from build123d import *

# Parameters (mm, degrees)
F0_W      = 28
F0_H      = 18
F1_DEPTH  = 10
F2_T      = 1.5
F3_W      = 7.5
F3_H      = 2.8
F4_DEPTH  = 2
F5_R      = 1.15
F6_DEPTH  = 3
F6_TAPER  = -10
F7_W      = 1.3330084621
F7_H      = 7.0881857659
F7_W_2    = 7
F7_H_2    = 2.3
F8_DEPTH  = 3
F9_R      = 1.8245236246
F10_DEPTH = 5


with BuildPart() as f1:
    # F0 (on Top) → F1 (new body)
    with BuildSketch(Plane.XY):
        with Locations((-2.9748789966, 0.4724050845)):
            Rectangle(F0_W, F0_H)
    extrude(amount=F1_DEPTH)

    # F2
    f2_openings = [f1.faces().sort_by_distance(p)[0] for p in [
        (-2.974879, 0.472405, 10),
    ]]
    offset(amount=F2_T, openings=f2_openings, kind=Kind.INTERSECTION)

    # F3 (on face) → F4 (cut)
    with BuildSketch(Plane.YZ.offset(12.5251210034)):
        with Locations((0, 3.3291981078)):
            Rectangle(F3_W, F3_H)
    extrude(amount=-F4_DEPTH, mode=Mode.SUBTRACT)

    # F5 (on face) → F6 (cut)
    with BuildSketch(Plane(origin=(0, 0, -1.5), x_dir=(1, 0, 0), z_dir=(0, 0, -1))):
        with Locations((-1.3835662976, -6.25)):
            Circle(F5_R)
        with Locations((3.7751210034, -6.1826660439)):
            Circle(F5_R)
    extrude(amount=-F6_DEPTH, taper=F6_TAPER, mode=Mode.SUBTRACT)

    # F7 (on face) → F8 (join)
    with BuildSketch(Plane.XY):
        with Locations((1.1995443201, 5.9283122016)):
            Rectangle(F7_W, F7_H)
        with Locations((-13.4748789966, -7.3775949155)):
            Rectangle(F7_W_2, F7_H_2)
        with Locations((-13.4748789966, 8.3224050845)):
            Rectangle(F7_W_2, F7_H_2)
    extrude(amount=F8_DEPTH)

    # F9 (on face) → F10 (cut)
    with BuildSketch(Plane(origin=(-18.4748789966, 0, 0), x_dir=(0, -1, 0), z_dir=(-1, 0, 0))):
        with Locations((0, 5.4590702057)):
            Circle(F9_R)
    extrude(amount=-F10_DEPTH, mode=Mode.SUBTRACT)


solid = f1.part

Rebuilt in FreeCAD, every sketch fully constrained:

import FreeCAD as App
import Part
import Sketcher
Q = App.Units.Quantity


def faces_at(feature, points):
    """Names of the faces that lie closest to the given points."""
    faces = feature.Shape.Faces
    near = lambda p: min(range(len(faces)), key=lambda i: faces[i].distToShape(Part.Vertex(*p))[0])
    return sorted({f"Face{near(p) + 1}" for p in points})


def add_polygon(sketch, points):
    """Adds a closed chain of lines whose ends are joined by coincident constraints."""
    first, n = sketch.GeometryCount, len(points)
    for a, b in zip(points, points[1:] + points[:1]):
        sketch.addGeometry(Part.LineSegment(App.Vector(*a, 0), App.Vector(*b, 0)), False)
    for i in range(n):
        sketch.addConstraint(Sketcher.Constraint("Coincident", first + i, 2, first + (i + 1) % n, 1))

doc = App.newDocument("Part")
body = doc.addObject("PartDesign::Body", "Body")

# Sketch on XY plane
sketch1 = doc.addObject("Sketcher::SketchObject", "Sketch")
body.addObject(sketch1)
sketch1.AttachmentSupport = (doc.XY_Plane, [""])
sketch1.MapMode = "FlatFace"
add_polygon(sketch1, [(-17, 9), (-17, -9), (11, -9), (11, 9)])  # lines 0-3
sketch1.addConstraint(Sketcher.Constraint("Vertical", 0))
sketch1.addConstraint(Sketcher.Constraint("Horizontal", 1))
sketch1.addConstraint(Sketcher.Constraint("Vertical", 2))
sketch1.addConstraint(Sketcher.Constraint("Horizontal", 3))
sketch1.addConstraint(Sketcher.Constraint("DistanceX", 1, 1, 1, 2, Q("28 mm")))
sketch1.addConstraint(Sketcher.Constraint("DistanceY", 0, 2, 0, 1, Q("18 mm")))
sketch1.addConstraint(Sketcher.Constraint("DistanceX", 0, 2, -1, 1, Q("16.974879 mm")))
sketch1.addConstraint(Sketcher.Constraint("DistanceY", 0, 2, -1, 1, Q("8.527595 mm")))
pad1 = doc.addObject("PartDesign::Pad", "Pad")
body.addObject(pad1)
pad1.Profile = sketch1
pad1.Length = 10
doc.recompute()

thickness = doc.addObject("PartDesign::Thickness", "Thickness")
body.addObject(thickness)
thickness.Base = (pad1, faces_at(pad1, [(-2.975, 0.472, 10)]))
thickness.Value = 1.5
thickness.Reversed = False
thickness.Join = "Intersection"

# Sketch on YZ plane
sketch2 = doc.addObject("Sketcher::SketchObject", "Sketch001")
body.addObject(sketch2)
sketch2.AttachmentSupport = (doc.YZ_Plane, [""])
sketch2.MapMode = "FlatFace"
sketch2.AttachmentOffset = App.Placement(App.Vector(0, 0, 12.525121), App.Rotation())
add_polygon(sketch2, [(-3.8, 4.7), (-3.8, 1.9), (3.8, 1.9), (3.8, 4.7)])  # lines 0-3
sketch2.addConstraint(Sketcher.Constraint("Vertical", 0))
sketch2.addConstraint(Sketcher.Constraint("Horizontal", 1))
sketch2.addConstraint(Sketcher.Constraint("Vertical", 2))
sketch2.addConstraint(Sketcher.Constraint("Horizontal", 3))
sketch2.addConstraint(Sketcher.Constraint("DistanceX", 1, 1, 1, 2, Q("7.5 mm")))
sketch2.addConstraint(Sketcher.Constraint("DistanceY", 0, 2, 0, 1, Q("2.8 mm")))
sketch2.addConstraint(Sketcher.Constraint("DistanceX", 0, 2, -1, 1, Q("3.75 mm")))
sketch2.addConstraint(Sketcher.Constraint("DistanceY", -1, 1, 0, 2, Q("1.929198 mm")))
pocket1 = doc.addObject("PartDesign::Pocket", "Pocket")
body.addObject(pocket1)
pocket1.Profile = sketch2
pocket1.Length = 2

# Sketch on XY plane
sketch3 = doc.addObject("Sketcher::SketchObject", "Sketch002")
body.addObject(sketch3)
sketch3.AttachmentSupport = (doc.XY_Plane, [""])
sketch3.MapMode = "FlatFace"
sketch3.AttachmentOffset = App.Placement(App.Vector(0, 0, -1.5), App.Rotation())
sketch3.addGeometry(Part.Circle(App.Vector(-1.4, 6.2, 0), App.Vector(0, 0, 1), 1.1), False)
sketch3.addGeometry(Part.Circle(App.Vector(3.8, 6.2, 0), App.Vector(0, 0, 1), 1.1), False)
sketch3.addConstraint(Sketcher.Constraint("Equal", 0, 1))
sketch3.addConstraint(Sketcher.Constraint("Diameter", 0, Q("2.3 mm")))
sketch3.addConstraint(Sketcher.Constraint("DistanceY", -1, 1, 0, 3, Q("6.25 mm")))
sketch3.addConstraint(Sketcher.Constraint("DistanceX", -1, 1, 1, 3, Q("3.775121 mm")))
sketch3.addConstraint(Sketcher.Constraint("DistanceX", 0, 3, -1, 1, Q("1.383566 mm")))
sketch3.addConstraint(Sketcher.Constraint("DistanceY", -1, 1, 1, 3, Q("6.182666 mm")))
pocket2 = doc.addObject("PartDesign::Pocket", "Pocket001")
body.addObject(pocket2)
pocket2.Profile = sketch3
pocket2.Length = 3
pocket2.Reversed = True
pocket2.TaperAngle = 10

# Sketch on XY plane
sketch4 = doc.addObject("Sketcher::SketchObject", "Sketch003")
body.addObject(sketch4)
sketch4.AttachmentSupport = (doc.XY_Plane, [""])
sketch4.MapMode = "FlatFace"
add_polygon(sketch4, [(0.5, 9.5), (0.5, 2.4), (1.9, 2.4), (1.9, 9.5)])  # lines 0-3
add_polygon(sketch4, [(-17, -6.2), (-17, -8.5), (-10, -8.5), (-10, -6.2)])  # lines 4-7
add_polygon(sketch4, [(-17, 9.5), (-17, 7.2), (-10, 7.2), (-10, 9.5)])  # lines 8-11
sketch4.addConstraint(Sketcher.Constraint("Vertical", 0))
sketch4.addConstraint(Sketcher.Constraint("Horizontal", 1))
sketch4.addConstraint(Sketcher.Constraint("Vertical", 2))
sketch4.addConstraint(Sketcher.Constraint("Horizontal", 3))
sketch4.addConstraint(Sketcher.Constraint("Vertical", 4))
sketch4.addConstraint(Sketcher.Constraint("Horizontal", 5))
sketch4.addConstraint(Sketcher.Constraint("Vertical", 6))
sketch4.addConstraint(Sketcher.Constraint("Horizontal", 7))
sketch4.addConstraint(Sketcher.Constraint("Vertical", 8))
sketch4.addConstraint(Sketcher.Constraint("Horizontal", 9))
sketch4.addConstraint(Sketcher.Constraint("Vertical", 10))
sketch4.addConstraint(Sketcher.Constraint("Horizontal", 11))
sketch4.addConstraint(Sketcher.Constraint("Horizontal", 3, 2, 10, 2))
sketch4.addConstraint(Sketcher.Constraint("Vertical", 7, 2, 8, 2))
sketch4.addConstraint(Sketcher.Constraint("Vertical", 6, 2, 9, 2))
sketch4.addConstraint(Sketcher.Constraint("Equal", 6, 8))
sketch4.addConstraint(Sketcher.Constraint("DistanceX", 5, 1, 5, 2, Q("7 mm")))
sketch4.addConstraint(Sketcher.Constraint("DistanceY", 4, 2, 4, 1, Q("2.3 mm")))
sketch4.addConstraint(Sketcher.Constraint("DistanceY", 4, 2, 3, 2, Q("18 mm")))
sketch4.addConstraint(Sketcher.Constraint("DistanceX", 1, 1, 1, 2, Q("1.333008 mm")))
sketch4.addConstraint(Sketcher.Constraint("DistanceY", 0, 2, 0, 1, Q("7.088186 mm")))
sketch4.addConstraint(Sketcher.Constraint("DistanceX", -1, 1, 0, 2, Q("0.53304 mm")))
sketch4.addConstraint(Sketcher.Constraint("DistanceY", -1, 1, 0, 2, Q("2.384219 mm")))
sketch4.addConstraint(Sketcher.Constraint("DistanceX", 4, 2, -1, 1, Q("16.974879 mm")))
pad2 = doc.addObject("PartDesign::Pad", "Pad001")
body.addObject(pad2)
pad2.Profile = sketch4
pad2.Length = 3

# Sketch on YZ plane
sketch5 = doc.addObject("Sketcher::SketchObject", "Sketch004")
body.addObject(sketch5)
sketch5.AttachmentSupport = (doc.YZ_Plane, [""])
sketch5.MapMode = "FlatFace"
sketch5.AttachmentOffset = App.Placement(App.Vector(0, 0, -18.474879), App.Rotation())
sketch5.addGeometry(Part.Circle(App.Vector(0, 5.5, 0), App.Vector(0, 0, 1), 1.8), False)
sketch5.addConstraint(Sketcher.Constraint("PointOnObject", 0, 3, -2))
sketch5.addConstraint(Sketcher.Constraint("Diameter", 0, Q("3.649047 mm")))
sketch5.addConstraint(Sketcher.Constraint("DistanceY", -1, 1, 0, 3, Q("5.45907 mm")))
pocket3 = doc.addObject("PartDesign::Pocket", "Pocket002")
body.addObject(pocket3)
pocket3.Profile = sketch5
pocket3.Length = 5
pocket3.Reversed = True

doc.recompute()
